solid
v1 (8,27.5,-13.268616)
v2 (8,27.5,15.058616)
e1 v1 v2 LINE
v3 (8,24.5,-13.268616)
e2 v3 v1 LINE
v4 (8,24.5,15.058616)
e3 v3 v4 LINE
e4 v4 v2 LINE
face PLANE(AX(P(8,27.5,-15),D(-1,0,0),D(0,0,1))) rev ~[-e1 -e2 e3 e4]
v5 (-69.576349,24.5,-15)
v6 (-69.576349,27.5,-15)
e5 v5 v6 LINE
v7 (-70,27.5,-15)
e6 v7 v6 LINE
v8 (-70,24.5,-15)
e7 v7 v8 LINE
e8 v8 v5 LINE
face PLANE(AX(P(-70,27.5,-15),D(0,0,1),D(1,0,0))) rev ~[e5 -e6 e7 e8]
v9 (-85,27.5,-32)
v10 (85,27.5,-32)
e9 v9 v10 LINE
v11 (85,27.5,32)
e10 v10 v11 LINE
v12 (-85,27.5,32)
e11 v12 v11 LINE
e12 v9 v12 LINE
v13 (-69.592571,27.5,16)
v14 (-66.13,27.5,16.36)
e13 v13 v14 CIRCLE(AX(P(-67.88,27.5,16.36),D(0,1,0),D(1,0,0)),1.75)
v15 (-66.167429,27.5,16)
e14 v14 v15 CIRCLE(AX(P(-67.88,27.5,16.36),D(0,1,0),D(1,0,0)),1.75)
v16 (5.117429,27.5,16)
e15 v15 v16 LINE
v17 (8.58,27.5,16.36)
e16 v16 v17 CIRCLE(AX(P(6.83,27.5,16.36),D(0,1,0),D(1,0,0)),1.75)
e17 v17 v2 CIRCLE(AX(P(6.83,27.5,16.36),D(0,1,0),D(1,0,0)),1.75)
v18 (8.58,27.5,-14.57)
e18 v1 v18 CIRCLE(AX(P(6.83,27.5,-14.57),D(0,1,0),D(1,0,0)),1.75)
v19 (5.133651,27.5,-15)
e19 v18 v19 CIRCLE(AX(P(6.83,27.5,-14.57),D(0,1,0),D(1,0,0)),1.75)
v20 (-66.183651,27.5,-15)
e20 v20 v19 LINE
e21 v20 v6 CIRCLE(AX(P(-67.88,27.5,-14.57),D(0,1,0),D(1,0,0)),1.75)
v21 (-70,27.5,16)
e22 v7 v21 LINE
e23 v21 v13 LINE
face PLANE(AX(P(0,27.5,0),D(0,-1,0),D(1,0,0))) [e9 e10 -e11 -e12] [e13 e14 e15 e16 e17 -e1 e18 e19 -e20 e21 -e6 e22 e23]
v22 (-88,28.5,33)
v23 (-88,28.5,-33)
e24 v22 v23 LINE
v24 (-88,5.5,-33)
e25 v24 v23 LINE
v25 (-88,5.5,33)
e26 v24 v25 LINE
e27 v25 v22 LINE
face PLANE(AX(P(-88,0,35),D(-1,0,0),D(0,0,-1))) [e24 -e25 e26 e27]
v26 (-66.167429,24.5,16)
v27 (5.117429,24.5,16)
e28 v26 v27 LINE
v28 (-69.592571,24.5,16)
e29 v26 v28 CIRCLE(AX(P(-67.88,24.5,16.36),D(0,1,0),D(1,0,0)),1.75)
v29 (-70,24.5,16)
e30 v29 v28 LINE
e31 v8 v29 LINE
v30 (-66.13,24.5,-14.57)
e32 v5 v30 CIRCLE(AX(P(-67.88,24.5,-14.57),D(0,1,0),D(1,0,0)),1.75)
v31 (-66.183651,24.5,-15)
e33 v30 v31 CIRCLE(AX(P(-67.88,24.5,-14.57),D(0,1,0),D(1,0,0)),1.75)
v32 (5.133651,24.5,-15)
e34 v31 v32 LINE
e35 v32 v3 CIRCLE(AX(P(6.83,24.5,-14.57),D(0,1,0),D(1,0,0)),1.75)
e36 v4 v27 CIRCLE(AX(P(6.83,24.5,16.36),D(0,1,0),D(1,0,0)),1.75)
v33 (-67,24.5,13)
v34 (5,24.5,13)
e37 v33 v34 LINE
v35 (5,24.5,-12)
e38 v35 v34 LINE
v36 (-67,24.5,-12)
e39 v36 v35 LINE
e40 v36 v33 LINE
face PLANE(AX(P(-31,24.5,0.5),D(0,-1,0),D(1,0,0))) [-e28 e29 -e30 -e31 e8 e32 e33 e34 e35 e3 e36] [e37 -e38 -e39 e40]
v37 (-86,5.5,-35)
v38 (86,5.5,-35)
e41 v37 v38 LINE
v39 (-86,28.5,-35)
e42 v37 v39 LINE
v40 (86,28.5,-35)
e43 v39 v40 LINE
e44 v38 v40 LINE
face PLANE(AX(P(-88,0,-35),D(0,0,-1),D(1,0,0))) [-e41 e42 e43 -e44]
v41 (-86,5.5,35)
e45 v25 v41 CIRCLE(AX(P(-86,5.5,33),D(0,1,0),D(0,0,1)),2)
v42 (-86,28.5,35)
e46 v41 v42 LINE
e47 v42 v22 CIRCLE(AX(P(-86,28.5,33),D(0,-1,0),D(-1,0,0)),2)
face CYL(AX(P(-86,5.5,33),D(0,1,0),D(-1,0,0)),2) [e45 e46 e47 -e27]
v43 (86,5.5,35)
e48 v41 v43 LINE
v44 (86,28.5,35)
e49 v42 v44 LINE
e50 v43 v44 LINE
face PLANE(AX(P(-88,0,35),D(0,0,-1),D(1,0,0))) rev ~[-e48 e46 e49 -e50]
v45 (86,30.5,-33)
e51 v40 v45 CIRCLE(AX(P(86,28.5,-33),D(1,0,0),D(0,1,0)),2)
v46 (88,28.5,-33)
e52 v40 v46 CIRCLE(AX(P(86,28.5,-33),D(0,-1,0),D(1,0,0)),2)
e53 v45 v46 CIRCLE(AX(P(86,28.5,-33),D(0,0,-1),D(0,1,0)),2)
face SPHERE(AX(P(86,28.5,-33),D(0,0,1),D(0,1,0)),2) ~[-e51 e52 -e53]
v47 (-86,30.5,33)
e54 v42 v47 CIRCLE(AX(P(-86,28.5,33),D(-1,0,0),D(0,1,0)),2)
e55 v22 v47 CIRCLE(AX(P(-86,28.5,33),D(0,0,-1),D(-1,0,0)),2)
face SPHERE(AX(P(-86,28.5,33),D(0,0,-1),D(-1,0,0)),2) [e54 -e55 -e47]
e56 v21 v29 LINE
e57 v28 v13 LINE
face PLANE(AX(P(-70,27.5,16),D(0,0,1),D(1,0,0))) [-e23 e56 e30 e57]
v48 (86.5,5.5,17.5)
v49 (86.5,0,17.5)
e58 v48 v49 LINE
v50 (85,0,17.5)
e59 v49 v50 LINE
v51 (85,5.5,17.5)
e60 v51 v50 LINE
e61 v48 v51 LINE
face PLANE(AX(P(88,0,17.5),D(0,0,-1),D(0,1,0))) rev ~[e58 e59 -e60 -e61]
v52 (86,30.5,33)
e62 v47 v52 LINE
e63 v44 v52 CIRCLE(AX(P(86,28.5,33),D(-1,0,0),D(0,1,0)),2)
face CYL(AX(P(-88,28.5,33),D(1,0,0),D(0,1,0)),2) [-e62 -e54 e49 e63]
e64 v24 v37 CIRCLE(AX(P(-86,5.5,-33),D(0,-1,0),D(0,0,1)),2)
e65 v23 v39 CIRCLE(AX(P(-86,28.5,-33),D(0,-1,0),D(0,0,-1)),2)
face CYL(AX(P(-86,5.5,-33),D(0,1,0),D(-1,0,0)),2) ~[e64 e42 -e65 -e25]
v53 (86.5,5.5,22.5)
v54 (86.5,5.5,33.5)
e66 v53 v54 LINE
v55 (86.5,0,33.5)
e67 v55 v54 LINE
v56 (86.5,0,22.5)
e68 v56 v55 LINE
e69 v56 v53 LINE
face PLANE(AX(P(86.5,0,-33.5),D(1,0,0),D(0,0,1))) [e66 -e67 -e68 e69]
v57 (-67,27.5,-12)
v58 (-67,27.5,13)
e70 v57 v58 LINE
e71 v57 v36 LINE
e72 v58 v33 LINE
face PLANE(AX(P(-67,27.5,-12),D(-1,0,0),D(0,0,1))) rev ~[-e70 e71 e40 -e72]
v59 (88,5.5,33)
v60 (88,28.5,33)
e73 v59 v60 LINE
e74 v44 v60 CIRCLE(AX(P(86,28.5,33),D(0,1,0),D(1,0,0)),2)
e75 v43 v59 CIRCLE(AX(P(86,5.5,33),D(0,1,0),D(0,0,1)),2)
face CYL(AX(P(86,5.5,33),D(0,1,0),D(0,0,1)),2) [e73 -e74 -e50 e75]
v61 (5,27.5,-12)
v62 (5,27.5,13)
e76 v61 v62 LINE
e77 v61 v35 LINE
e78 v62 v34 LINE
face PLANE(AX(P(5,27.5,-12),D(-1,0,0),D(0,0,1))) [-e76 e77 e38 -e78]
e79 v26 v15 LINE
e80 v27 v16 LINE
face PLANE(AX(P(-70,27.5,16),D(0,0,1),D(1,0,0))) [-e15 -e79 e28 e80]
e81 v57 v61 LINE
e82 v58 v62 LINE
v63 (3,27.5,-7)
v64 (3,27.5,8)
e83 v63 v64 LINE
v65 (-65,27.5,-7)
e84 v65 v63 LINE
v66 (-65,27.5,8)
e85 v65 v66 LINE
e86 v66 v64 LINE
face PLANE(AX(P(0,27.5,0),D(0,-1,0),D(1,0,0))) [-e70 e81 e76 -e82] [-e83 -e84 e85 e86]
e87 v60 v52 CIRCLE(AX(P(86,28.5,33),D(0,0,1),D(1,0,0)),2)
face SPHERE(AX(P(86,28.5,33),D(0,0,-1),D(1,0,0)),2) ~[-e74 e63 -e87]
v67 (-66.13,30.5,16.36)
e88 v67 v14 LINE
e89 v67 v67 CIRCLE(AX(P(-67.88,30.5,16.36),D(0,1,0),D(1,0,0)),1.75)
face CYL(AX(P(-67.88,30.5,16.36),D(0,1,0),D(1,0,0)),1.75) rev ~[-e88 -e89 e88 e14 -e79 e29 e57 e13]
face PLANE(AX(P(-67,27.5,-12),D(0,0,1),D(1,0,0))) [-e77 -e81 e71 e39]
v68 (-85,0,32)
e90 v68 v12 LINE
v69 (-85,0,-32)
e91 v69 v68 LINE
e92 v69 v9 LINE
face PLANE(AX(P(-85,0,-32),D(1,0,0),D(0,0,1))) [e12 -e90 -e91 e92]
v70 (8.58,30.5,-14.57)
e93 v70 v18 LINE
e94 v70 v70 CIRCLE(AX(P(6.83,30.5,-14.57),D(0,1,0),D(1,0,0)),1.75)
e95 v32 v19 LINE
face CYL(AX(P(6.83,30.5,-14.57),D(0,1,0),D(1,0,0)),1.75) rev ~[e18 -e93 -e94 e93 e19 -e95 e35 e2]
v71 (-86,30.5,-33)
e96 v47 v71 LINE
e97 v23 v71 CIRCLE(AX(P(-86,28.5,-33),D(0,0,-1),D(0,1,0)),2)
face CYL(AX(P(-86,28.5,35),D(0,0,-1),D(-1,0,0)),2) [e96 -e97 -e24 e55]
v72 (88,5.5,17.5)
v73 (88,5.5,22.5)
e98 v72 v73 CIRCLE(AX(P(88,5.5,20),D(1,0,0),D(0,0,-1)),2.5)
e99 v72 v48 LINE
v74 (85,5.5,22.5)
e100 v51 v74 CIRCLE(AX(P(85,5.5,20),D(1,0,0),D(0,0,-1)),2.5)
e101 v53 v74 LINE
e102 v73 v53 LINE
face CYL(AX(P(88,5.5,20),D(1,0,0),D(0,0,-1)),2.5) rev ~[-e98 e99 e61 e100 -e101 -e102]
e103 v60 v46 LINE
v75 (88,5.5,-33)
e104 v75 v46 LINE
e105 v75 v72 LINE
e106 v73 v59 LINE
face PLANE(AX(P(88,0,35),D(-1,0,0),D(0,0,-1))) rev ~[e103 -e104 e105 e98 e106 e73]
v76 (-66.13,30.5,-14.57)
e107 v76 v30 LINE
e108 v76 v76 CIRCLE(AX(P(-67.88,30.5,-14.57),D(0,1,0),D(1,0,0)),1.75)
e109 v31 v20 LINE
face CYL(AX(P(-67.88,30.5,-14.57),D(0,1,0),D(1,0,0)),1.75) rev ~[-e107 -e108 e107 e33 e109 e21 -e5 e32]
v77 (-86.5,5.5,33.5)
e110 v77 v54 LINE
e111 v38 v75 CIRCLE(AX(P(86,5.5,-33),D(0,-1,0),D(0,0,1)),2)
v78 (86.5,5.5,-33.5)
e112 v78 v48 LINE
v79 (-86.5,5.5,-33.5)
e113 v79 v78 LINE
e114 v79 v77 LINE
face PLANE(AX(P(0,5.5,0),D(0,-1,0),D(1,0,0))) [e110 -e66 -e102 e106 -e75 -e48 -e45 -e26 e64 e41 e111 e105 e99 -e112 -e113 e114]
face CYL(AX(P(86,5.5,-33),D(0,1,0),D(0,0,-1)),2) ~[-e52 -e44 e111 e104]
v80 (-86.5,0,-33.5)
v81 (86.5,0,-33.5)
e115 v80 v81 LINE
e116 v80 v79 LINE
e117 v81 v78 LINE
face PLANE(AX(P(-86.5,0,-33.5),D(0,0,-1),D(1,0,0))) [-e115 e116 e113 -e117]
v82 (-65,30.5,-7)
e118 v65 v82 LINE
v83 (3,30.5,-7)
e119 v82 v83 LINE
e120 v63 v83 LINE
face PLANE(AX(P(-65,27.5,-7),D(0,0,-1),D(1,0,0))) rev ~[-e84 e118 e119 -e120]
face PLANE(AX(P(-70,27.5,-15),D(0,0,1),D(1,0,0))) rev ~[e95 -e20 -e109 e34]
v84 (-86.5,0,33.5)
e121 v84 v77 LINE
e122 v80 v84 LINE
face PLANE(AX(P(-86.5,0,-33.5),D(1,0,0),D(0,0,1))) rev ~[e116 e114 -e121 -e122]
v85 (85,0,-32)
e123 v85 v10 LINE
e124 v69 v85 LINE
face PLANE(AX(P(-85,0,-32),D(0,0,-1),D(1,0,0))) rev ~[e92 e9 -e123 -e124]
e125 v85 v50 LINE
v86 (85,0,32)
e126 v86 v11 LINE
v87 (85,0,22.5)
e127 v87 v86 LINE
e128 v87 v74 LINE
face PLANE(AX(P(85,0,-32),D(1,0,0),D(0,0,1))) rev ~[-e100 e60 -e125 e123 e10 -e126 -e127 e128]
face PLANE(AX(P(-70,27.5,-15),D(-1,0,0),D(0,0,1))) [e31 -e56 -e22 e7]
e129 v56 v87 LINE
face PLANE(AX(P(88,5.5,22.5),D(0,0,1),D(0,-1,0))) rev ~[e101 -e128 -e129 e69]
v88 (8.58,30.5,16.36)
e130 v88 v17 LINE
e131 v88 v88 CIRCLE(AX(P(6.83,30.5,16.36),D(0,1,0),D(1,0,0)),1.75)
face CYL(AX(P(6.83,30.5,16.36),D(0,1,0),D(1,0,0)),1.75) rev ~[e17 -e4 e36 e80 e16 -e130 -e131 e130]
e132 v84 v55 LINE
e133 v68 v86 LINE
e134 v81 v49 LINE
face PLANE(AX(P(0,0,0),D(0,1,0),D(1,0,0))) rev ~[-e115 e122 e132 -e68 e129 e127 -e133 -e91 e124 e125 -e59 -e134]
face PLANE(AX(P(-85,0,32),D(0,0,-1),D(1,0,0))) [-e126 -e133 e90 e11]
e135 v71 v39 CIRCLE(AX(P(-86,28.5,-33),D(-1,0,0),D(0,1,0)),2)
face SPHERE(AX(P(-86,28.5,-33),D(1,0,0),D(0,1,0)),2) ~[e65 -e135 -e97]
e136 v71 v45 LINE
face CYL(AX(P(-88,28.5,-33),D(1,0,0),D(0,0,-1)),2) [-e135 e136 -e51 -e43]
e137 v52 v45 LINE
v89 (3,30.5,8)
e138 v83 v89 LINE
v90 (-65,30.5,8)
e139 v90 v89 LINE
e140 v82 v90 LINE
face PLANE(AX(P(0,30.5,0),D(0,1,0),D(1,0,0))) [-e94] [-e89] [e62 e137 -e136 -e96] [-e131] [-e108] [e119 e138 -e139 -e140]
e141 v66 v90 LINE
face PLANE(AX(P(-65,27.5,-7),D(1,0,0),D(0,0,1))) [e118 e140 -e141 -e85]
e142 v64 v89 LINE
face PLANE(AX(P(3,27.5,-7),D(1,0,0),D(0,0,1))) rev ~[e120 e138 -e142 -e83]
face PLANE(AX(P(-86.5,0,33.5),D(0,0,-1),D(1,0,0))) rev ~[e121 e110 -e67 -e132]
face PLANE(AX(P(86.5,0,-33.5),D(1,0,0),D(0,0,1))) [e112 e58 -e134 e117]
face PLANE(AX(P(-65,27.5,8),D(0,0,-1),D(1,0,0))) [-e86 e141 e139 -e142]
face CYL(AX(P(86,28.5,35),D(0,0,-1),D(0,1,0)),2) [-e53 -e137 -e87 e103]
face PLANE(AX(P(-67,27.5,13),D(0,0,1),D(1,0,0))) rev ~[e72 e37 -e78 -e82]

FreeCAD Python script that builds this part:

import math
import FreeCAD as App
import Part
import Sketcher

V = App.Vector


def edges_at(feature, points):
    """Names of the edges that pass closest to the given points."""
    edges = feature.Shape.Edges
    near = lambda p: min(range(len(edges)), key=lambda i: edges[i].distToShape(Part.Vertex(*p))[0])
    return sorted({f"Edge{near(p) + 1}" for p in points})


def add_polygon(sketch, points):
    """Adds a closed chain of lines whose ends are joined by coincident constraints."""
    first, n = sketch.GeometryCount, len(points)
    for a, b in zip(points, points[1:] + points[:1]):
        sketch.addGeometry(Part.LineSegment(App.Vector(*a, 0), App.Vector(*b, 0)), False)
    for i in range(n):
        sketch.addConstraint(Sketcher.Constraint("Coincident", first + i, 2, first + (i + 1) % n, 1))

doc = App.newDocument("Part")
body = doc.addObject("PartDesign::Body", "Body")

# Sketch on XZ plane
sketch1 = doc.addObject("Sketcher::SketchObject", "Sketch")
body.addObject(sketch1)
sketch1.AttachmentSupport = (doc.XZ_Plane, [""])
sketch1.MapMode = "FlatFace"
add_polygon(sketch1, [(-88, -35), (-88, 35), (88, 35), (88, -35)])  # lines 0-3
sketch1.addConstraint([
    Sketcher.Constraint("Vertical", 0),
    Sketcher.Constraint("Horizontal", 1),
    Sketcher.Constraint("Vertical", 2),
    Sketcher.Constraint("Horizontal", 3),
    Sketcher.Constraint("Symmetric", 0, 2, 2, 2, -1, 1),
    Sketcher.Constraint("DistanceX", 1, 1, 1, 2, 176.0),
    Sketcher.Constraint("DistanceY", 0, 1, 0, 2, 70.0),
])
pad1 = doc.addObject("PartDesign::Pad", "Pad")
body.addObject(pad1)
pad1.Profile = sketch1
pad1.Length = 30.5
pad1.Reversed = True

# Sketch on XZ plane
sketch2 = doc.addObject("Sketcher::SketchObject", "Sketch001")
body.addObject(sketch2)
sketch2.AttachmentSupport = (doc.XZ_Plane, [""])
sketch2.MapMode = "FlatFace"
add_polygon(sketch2, [(-85, 32), (-85, -32), (85, -32), (85, 32)])  # lines 0-3
sketch2.addConstraint([
    Sketcher.Constraint("Vertical", 0),
    Sketcher.Constraint("Horizontal", 1),
    Sketcher.Constraint("Vertical", 2),
    Sketcher.Constraint("Horizontal", 3),
    Sketcher.Constraint("Symmetric", 0, 2, 2, 2, -1, 1),
    Sketcher.Constraint("DistanceX", 1, 1, 1, 2, 170.0),
    Sketcher.Constraint("DistanceY", 0, 2, 0, 1, 64.0),
])
pocket1 = doc.addObject("PartDesign::Pocket", "Pocket")
body.addObject(pocket1)
pocket1.Profile = sketch2
pocket1.Length = 27.5

# Sketch on XZ plane
sketch3 = doc.addObject("Sketcher::SketchObject", "Sketch002")
body.addObject(sketch3)
sketch3.AttachmentSupport = (doc.XZ_Plane, [""])
sketch3.MapMode = "FlatFace"
add_polygon(sketch3, [(-88, 35), (-88, -35), (88, -35), (88, 35)])  # lines 0-3
add_polygon(sketch3, [(86.5, -33.5), (-86.5, -33.5), (-86.5, 33.5), (86.5, 33.5)])  # lines 4-7
sketch3.addConstraint([
    Sketcher.Constraint("Vertical", 0),
    Sketcher.Constraint("Horizontal", 1),
    Sketcher.Constraint("Vertical", 2),
    Sketcher.Constraint("Horizontal", 3),
    Sketcher.Constraint("Horizontal", 4),
    Sketcher.Constraint("Vertical", 5),
    Sketcher.Constraint("Horizontal", 6),
    Sketcher.Constraint("Vertical", 7),
    Sketcher.Constraint("Symmetric", 0, 2, 2, 2, -1, 1),
    Sketcher.Constraint("Symmetric", 4, 2, 6, 2, -1, 1),
    Sketcher.Constraint("DistanceX", 1, 1, 1, 2, 176.0),
    Sketcher.Constraint("DistanceX", 4, 2, 4, 1, 173.0),
    Sketcher.Constraint("DistanceY", 0, 2, 0, 1, 70.0),
    Sketcher.Constraint("DistanceY", 5, 1, 5, 2, 67.0),
])
pocket2 = doc.addObject("PartDesign::Pocket", "Pocket001")
body.addObject(pocket2)
pocket2.Profile = sketch3
pocket2.Length = 5.5
doc.recompute()

fillet = doc.addObject("PartDesign::Fillet", "Fillet")
body.addObject(fillet)
fillet.Base = (pocket2, edges_at(pocket2, [
    (88, 30.5, 0),
    (0, 30.5, -35),
    (-88, 30.5, 0),
    (-88, 18, -35),
    (88, 18, -35),
    (88, 18, 35),
    (-88, 18, 35),
    (0, 30.5, 35),
]))
fillet.Radius = 2

# Sketch on XZ plane
sketch4 = doc.addObject("Sketcher::SketchObject", "Sketch003")
body.addObject(sketch4)
sketch4.AttachmentSupport = (doc.XZ_Plane, [""])
sketch4.MapMode = "FlatFace"
sketch4.AttachmentOffset = App.Placement(V(0, 0, -27.5), App.Rotation())
add_polygon(sketch4, [(-70, 16), (-70, -15), (8, -15), (8, 16)])  # lines 0-3
add_polygon(sketch4, [(5, -12), (-67, -12), (-67, 13), (5, 13)])  # lines 4-7
sketch4.addConstraint([
    Sketcher.Constraint("Vertical", 0),
    Sketcher.Constraint("Horizontal", 1),
    Sketcher.Constraint("Vertical", 2),
    Sketcher.Constraint("Horizontal", 3),
    Sketcher.Constraint("Horizontal", 4),
    Sketcher.Constraint("Vertical", 5),
    Sketcher.Constraint("Horizontal", 6),
    Sketcher.Constraint("Vertical", 7),
    Sketcher.Constraint("DistanceX", 1, 1, 1, 2, 78.0),
    Sketcher.Constraint("DistanceX", 4, 2, 4, 1, 72.0),
    Sketcher.Constraint("DistanceY", 0, 2, 0, 1, 31.0),
    Sketcher.Constraint("DistanceY", 5, 1, 5, 2, 25.0),
    Sketcher.Constraint("DistanceX", 0, 2, -1, 1, 70.0),
    Sketcher.Constraint("DistanceY", 0, 2, -1, 1, 15.0),
    Sketcher.Constraint("DistanceX", 4, 2, -1, 1, 67.0),
    Sketcher.Constraint("DistanceY", 4, 2, -1, 1, 12.0),
])
pad2 = doc.addObject("PartDesign::Pad", "Pad001")
body.addObject(pad2)
pad2.Profile = sketch4
pad2.Length = 3

# Sketch on XZ plane
sketch5 = doc.addObject("Sketcher::SketchObject", "Sketch004")
body.addObject(sketch5)
sketch5.AttachmentSupport = (doc.XZ_Plane, [""])
sketch5.MapMode = "FlatFace"
sketch5.AttachmentOffset = App.Placement(V(0, 0, -27.5), App.Rotation())
add_polygon(sketch5, [(-65, 8), (-65, -7), (3, -7), (3, 8)])  # lines 0-3
sketch5.addConstraint([
    Sketcher.Constraint("Vertical", 0),
    Sketcher.Constraint("Horizontal", 1),
    Sketcher.Constraint("Vertical", 2),
    Sketcher.Constraint("Horizontal", 3),
    Sketcher.Constraint("DistanceX", 1, 1, 1, 2, 68.0),
    Sketcher.Constraint("DistanceY", 0, 2, 0, 1, 15.0),
    Sketcher.Constraint("DistanceX", 0, 2, -1, 1, 65.0),
    Sketcher.Constraint("DistanceY", 0, 2, -1, 1, 7.0),
])
pocket3 = doc.addObject("PartDesign::Pocket", "Pocket002")
body.addObject(pocket3)
pocket3.Profile = sketch5
pocket3.Type = "UpToFirst"

# Sketch on XZ plane
sketch6 = doc.addObject("Sketcher::SketchObject", "Sketch005")
body.addObject(sketch6)
sketch6.AttachmentSupport = (doc.XZ_Plane, [""])
sketch6.MapMode = "FlatFace"
sketch6.AttachmentOffset = App.Placement(V(0, 0, -30.5), App.Rotation())
sketch6.addGeometry(Part.Circle(V(-67.88, -14.57, 0), V(0, 0, 1), 1.75), False)
sketch6.addConstraint([
    Sketcher.Constraint("Diameter", 0, 3.5),
    Sketcher.Constraint("DistanceX", 0, 3, -1, 1, 67.88),
    Sketcher.Constraint("DistanceY", 0, 3, -1, 1, 14.57),
])
pocket4 = doc.addObject("PartDesign::Pocket", "Pocket003")
body.addObject(pocket4)
pocket4.Profile = sketch6
pocket4.Type = "UpToFirst"
pocket4.Reversed = True

# Sketch on XZ plane
sketch7 = doc.addObject("Sketcher::SketchObject", "Sketch006")
body.addObject(sketch7)
sketch7.AttachmentSupport = (doc.XZ_Plane, [""])
sketch7.MapMode = "FlatFace"
sketch7.AttachmentOffset = App.Placement(V(0, 0, -30.5), App.Rotation())
sketch7.addGeometry(Part.Circle(V(6.83, -14.57, 0), V(0, 0, 1), 1.75), False)
sketch7.addConstraint([
    Sketcher.Constraint("Diameter", 0, 3.5),
    Sketcher.Constraint("DistanceX", -1, 1, 0, 3, 6.83),
    Sketcher.Constraint("DistanceY", 0, 3, -1, 1, 14.57),
])
pocket5 = doc.addObject("PartDesign::Pocket", "Pocket004")
body.addObject(pocket5)
pocket5.Profile = sketch7
pocket5.Type = "UpToFirst"
pocket5.Reversed = True

# Sketch on XZ plane
sketch8 = doc.addObject("Sketcher::SketchObject", "Sketch007")
body.addObject(sketch8)
sketch8.AttachmentSupport = (doc.XZ_Plane, [""])
sketch8.MapMode = "FlatFace"
sketch8.AttachmentOffset = App.Placement(V(0, 0, -30.5), App.Rotation())
sketch8.addGeometry(Part.Circle(V(6.83, 16.36, 0), V(0, 0, 1), 1.75), False)
sketch8.addConstraint([
    Sketcher.Constraint("Diameter", 0, 3.5),
    Sketcher.Constraint("DistanceX", -1, 1, 0, 3, 6.83),
    Sketcher.Constraint("DistanceY", -1, 1, 0, 3, 16.36),
])
pocket6 = doc.addObject("PartDesign::Pocket", "Pocket005")
body.addObject(pocket6)
pocket6.Profile = sketch8
pocket6.Length = 6
pocket6.Reversed = True

# Sketch on XZ plane
sketch9 = doc.addObject("Sketcher::SketchObject", "Sketch008")
body.addObject(sketch9)
sketch9.AttachmentSupport = (doc.XZ_Plane, [""])
sketch9.MapMode = "FlatFace"
sketch9.AttachmentOffset = App.Placement(V(0, 0, -30.5), App.Rotation())
sketch9.addGeometry(Part.Circle(V(-67.88, 16.36, 0), V(0, 0, 1), 1.75), False)
sketch9.addConstraint([
    Sketcher.Constraint("Diameter", 0, 3.5),
    Sketcher.Constraint("DistanceX", 0, 3, -1, 1, 67.88),
    Sketcher.Constraint("DistanceY", -1, 1, 0, 3, 16.36),
])
pocket7 = doc.addObject("PartDesign::Pocket", "Pocket006")
body.addObject(pocket7)
pocket7.Profile = sketch9
pocket7.Length = 6
pocket7.Reversed = True

# Sketch on YZ plane
sketch10 = doc.addObject("Sketcher::SketchObject", "Sketch009")
body.addObject(sketch10)
sketch10.AttachmentSupport = (doc.YZ_Plane, [""])
sketch10.MapMode = "FlatFace"
sketch10.AttachmentOffset = App.Placement(V(0, 0, 88), App.Rotation())
sketch10.addGeometry([
    Part.LineSegment(V(5.5, 22.5, 0), V(0, 22.5, 0)),
    Part.LineSegment(V(0, 22.5, 0), V(0, 17.5, 0)),
    Part.LineSegment(V(0, 17.5, 0), V(5.5, 17.5, 0)),
    Part.ArcOfCircle(Part.Circle(V(5.5, 20, 0), V(0, 0, 1), 2.5), math.radians(-90), math.radians(90)),
], False)
sketch10.addConstraint([
    Sketcher.Constraint("Coincident", 0, 2, 1, 1),
    Sketcher.Constraint("Coincident", 1, 2, 2, 1),
    Sketcher.Constraint("Tangent", 2, 2, 3, 1),
    Sketcher.Constraint("Tangent", 3, 2, 0, 1),
    Sketcher.Constraint("Horizontal", 0),
    Sketcher.Constraint("Vertical", 1),
    Sketcher.Constraint("Horizontal", 2),
    Sketcher.Constraint("PointOnObject", 0, 2, -2),
    Sketcher.Constraint("Radius", 3, 2.5),
    Sketcher.Constraint("DistanceX", 0, 2, 0, 1, 5.5),
    Sketcher.Constraint("DistanceY", -1, 1, 3, 3, 20.0),
])
pocket8 = doc.addObject("PartDesign::Pocket", "Pocket007")
body.addObject(pocket8)
pocket8.Profile = sketch10
pocket8.Length = 3

doc.recompute()
